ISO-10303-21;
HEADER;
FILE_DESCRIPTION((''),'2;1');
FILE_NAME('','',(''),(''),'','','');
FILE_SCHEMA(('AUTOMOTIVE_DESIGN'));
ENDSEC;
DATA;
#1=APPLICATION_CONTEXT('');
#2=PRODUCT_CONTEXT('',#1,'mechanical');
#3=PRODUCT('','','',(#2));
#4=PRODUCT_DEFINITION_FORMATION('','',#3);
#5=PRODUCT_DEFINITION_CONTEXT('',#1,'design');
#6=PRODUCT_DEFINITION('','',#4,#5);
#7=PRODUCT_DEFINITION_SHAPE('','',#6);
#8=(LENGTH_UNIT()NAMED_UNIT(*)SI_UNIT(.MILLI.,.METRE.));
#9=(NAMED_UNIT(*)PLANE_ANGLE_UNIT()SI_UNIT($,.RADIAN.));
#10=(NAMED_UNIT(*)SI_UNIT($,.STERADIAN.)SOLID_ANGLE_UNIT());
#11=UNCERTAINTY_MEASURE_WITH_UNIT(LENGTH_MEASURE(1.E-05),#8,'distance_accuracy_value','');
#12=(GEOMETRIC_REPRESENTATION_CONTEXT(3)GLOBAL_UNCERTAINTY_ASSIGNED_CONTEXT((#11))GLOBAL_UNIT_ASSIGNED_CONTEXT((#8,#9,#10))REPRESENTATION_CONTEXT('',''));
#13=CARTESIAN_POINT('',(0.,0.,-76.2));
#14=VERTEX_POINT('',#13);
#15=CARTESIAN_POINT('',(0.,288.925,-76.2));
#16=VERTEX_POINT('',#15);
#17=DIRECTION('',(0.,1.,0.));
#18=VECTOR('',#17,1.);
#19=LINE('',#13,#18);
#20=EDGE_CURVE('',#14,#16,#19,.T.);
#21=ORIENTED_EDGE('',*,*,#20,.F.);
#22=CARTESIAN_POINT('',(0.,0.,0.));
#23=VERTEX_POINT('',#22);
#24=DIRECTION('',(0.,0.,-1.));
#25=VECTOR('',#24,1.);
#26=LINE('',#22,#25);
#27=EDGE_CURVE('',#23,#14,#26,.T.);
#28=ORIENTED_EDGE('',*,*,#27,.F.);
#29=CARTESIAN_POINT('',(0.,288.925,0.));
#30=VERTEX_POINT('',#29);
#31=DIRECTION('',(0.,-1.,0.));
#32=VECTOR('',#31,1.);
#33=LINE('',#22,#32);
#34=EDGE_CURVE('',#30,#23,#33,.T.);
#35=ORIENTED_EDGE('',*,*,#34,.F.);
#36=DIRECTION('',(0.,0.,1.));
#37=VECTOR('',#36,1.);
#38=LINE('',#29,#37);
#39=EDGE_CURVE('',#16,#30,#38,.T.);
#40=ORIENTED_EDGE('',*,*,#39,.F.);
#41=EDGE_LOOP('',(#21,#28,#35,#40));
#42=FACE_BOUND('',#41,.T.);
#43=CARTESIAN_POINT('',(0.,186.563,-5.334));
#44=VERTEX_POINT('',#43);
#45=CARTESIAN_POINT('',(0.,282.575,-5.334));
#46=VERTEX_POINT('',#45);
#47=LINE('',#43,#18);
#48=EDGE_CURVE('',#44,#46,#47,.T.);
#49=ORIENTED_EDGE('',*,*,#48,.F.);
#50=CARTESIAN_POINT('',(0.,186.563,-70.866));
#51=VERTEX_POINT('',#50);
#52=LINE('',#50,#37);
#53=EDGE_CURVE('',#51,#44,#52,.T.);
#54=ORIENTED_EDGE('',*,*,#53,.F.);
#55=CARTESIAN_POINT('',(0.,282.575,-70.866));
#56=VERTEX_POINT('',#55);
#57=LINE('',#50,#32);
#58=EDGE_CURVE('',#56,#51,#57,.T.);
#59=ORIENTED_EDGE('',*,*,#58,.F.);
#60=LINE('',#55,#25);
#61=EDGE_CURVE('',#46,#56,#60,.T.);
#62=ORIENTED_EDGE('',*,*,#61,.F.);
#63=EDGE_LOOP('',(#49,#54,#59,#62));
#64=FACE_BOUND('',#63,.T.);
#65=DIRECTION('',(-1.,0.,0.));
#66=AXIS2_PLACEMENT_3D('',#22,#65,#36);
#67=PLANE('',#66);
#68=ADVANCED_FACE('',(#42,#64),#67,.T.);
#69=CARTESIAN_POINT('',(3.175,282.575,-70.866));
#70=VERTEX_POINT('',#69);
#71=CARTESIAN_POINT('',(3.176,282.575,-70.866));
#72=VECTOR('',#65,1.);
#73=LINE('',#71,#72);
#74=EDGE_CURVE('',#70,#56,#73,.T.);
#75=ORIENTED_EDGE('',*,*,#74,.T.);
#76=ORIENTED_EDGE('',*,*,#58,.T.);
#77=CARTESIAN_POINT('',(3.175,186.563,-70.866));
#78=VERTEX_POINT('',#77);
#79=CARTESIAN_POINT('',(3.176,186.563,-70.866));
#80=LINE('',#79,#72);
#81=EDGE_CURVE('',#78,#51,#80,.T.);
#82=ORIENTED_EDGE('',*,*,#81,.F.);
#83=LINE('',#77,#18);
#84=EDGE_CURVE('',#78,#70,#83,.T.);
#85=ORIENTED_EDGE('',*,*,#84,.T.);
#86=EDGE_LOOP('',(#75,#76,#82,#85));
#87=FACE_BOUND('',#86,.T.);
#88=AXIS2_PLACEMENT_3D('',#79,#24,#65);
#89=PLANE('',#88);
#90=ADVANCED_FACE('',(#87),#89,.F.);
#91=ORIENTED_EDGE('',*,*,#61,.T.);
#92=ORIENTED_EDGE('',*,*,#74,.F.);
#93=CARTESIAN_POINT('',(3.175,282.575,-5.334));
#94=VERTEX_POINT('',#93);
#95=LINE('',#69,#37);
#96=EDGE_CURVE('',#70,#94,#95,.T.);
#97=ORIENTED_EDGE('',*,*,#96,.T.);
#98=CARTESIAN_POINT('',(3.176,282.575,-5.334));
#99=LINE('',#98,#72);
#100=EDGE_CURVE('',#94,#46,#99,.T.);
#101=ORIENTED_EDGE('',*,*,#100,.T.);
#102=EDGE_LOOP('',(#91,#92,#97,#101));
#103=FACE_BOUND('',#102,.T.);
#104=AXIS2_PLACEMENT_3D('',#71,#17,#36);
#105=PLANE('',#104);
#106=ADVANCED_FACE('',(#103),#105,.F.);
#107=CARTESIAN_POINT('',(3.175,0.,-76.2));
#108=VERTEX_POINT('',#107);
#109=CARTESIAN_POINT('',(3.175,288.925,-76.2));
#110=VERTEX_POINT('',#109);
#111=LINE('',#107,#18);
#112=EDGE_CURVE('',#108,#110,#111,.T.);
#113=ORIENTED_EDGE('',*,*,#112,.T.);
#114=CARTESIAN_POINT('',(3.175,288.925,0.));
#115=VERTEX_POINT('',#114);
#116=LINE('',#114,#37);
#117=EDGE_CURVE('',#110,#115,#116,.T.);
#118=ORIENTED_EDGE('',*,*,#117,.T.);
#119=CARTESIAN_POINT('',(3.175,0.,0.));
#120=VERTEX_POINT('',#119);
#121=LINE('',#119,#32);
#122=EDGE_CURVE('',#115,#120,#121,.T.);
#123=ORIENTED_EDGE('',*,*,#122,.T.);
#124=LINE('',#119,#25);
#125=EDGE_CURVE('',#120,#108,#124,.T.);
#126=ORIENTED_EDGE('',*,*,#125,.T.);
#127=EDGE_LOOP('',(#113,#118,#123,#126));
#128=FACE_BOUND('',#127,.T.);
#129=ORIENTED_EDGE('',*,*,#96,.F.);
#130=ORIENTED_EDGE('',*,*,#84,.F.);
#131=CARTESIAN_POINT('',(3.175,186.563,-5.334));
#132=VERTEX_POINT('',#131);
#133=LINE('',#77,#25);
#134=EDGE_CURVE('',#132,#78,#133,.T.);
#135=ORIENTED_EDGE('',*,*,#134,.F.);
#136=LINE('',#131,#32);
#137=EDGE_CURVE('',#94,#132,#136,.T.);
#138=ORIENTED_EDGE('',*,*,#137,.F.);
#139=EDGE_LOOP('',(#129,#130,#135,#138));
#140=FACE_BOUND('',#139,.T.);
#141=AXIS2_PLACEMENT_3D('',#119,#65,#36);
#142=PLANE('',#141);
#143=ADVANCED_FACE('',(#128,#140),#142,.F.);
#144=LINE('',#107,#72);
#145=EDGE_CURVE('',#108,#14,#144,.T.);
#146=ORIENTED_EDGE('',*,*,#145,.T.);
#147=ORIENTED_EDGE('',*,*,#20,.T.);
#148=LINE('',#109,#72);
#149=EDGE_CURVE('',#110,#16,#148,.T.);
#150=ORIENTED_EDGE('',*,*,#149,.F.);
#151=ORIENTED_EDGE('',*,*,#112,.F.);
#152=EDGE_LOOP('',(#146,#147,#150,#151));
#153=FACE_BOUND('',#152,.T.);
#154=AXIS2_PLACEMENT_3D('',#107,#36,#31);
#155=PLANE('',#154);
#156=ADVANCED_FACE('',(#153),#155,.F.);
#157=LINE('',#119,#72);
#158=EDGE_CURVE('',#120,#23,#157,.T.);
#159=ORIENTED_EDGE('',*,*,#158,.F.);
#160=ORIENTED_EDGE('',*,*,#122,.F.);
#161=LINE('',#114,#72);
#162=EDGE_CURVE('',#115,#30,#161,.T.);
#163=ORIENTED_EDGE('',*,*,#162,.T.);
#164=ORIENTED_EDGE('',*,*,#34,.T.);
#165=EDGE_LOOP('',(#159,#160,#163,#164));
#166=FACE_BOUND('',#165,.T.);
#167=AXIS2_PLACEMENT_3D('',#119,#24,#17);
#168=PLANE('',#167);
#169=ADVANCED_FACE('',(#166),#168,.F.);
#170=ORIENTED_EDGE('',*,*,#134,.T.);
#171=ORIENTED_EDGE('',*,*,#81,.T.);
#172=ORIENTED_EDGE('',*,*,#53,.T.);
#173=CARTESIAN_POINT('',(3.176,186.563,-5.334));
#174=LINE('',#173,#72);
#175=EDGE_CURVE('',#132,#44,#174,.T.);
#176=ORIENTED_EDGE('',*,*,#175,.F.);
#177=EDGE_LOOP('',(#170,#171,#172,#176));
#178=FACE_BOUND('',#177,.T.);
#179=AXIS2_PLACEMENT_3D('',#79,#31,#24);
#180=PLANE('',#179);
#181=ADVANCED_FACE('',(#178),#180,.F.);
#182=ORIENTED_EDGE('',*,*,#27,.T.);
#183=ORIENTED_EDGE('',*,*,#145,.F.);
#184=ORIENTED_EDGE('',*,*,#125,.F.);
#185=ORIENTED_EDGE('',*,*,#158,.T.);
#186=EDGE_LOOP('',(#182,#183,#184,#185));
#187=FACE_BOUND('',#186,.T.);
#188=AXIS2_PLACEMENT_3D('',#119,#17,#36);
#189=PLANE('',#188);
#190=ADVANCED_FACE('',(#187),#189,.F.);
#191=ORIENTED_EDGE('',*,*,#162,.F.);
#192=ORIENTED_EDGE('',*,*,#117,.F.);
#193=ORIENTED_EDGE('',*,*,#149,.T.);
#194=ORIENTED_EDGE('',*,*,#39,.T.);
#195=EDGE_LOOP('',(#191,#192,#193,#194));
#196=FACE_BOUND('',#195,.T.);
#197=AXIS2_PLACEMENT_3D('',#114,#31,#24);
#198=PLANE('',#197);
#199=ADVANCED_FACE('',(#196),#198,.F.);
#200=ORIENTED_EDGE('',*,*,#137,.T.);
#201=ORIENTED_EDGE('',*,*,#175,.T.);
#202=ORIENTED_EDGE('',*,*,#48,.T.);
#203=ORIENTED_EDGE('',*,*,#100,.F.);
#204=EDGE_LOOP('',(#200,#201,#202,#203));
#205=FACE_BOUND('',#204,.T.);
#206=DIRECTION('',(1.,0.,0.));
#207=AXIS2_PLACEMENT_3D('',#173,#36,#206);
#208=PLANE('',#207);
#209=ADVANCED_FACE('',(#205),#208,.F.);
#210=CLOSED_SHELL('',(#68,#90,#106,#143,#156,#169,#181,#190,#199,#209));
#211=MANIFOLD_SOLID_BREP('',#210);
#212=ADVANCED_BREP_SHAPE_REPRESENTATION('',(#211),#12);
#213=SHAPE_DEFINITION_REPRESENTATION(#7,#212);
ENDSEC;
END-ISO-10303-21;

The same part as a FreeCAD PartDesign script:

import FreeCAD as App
import Part
import Sketcher
Q = App.Units.Quantity


def add_polygon(sketch, points):
    """Adds a closed chain of lines whose ends are joined by coincident constraints."""
    first, n = sketch.GeometryCount, len(points)
    for a, b in zip(points, points[1:] + points[:1]):
        sketch.addGeometry(Part.LineSegment(App.Vector(*a, 0), App.Vector(*b, 0)), False)
    for i in range(n):
        sketch.addConstraint(Sketcher.Constraint("Coincident", first + i, 2, first + (i + 1) % n, 1))

doc = App.newDocument("Part")
body = doc.addObject("PartDesign::Body", "Body")

sketch1 = body.newObject("Sketcher::SketchObject", "Sketch")
sketch1.AttachmentSupport = (doc.getObject("YZ_Plane"), [""])
sketch1.MapMode = "FlatFace"
add_polygon(sketch1, [(289, 0), (0, 0), (0, -76), (289, -76)])
sketch1.addConstraint(Sketcher.Constraint("Horizontal", 0))
sketch1.addConstraint(Sketcher.Constraint("Vertical", 1))
sketch1.addConstraint(Sketcher.Constraint("Horizontal", 2))
sketch1.addConstraint(Sketcher.Constraint("Vertical", 3))
sketch1.addConstraint(Sketcher.Constraint("Coincident", 0, 2, -1, 1))
sketch1.addConstraint(Sketcher.Constraint("DistanceY", 1, 2, 1, 1, Q("3 in")))
sketch1.addConstraint(Sketcher.Constraint("DistanceX", 0, 2, 0, 1, Q("11.375 in")))
pad1 = body.newObject("PartDesign::Pad", "Pad")
pad1.Profile = sketch1
pad1.Length = Q("0.125 in")

sketch2 = body.newObject("Sketcher::SketchObject", "Sketch001")
sketch2.AttachmentSupport = (doc.getObject("YZ_Plane"), [""])
sketch2.MapMode = "FlatFace"
add_polygon(sketch2, [(283, -71), (187, -71), (187, -5), (283, -5)])
sketch2.addConstraint(Sketcher.Constraint("Horizontal", 0))
sketch2.addConstraint(Sketcher.Constraint("Vertical", 1))
sketch2.addConstraint(Sketcher.Constraint("Horizontal", 2))
sketch2.addConstraint(Sketcher.Constraint("Vertical", 3))
sketch2.addConstraint(Sketcher.Constraint("DistanceX", 0, 2, 0, 1, Q("3.78 in")))
sketch2.addConstraint(Sketcher.Constraint("DistanceY", 1, 1, 1, 2, Q("2.58 in")))
sketch2.addConstraint(Sketcher.Constraint("DistanceY", 0, 2, -1, 1, Q("2.79 in")))
sketch2.addConstraint(Sketcher.Constraint("DistanceX", -1, 1, 0, 2, Q("7.345 in")))
pocket1 = body.newObject("PartDesign::Pocket", "Pocket")
pocket1.Profile = sketch2
pocket1.Type = "UpToFirst"
pocket1.Reversed = True

doc.recompute()
